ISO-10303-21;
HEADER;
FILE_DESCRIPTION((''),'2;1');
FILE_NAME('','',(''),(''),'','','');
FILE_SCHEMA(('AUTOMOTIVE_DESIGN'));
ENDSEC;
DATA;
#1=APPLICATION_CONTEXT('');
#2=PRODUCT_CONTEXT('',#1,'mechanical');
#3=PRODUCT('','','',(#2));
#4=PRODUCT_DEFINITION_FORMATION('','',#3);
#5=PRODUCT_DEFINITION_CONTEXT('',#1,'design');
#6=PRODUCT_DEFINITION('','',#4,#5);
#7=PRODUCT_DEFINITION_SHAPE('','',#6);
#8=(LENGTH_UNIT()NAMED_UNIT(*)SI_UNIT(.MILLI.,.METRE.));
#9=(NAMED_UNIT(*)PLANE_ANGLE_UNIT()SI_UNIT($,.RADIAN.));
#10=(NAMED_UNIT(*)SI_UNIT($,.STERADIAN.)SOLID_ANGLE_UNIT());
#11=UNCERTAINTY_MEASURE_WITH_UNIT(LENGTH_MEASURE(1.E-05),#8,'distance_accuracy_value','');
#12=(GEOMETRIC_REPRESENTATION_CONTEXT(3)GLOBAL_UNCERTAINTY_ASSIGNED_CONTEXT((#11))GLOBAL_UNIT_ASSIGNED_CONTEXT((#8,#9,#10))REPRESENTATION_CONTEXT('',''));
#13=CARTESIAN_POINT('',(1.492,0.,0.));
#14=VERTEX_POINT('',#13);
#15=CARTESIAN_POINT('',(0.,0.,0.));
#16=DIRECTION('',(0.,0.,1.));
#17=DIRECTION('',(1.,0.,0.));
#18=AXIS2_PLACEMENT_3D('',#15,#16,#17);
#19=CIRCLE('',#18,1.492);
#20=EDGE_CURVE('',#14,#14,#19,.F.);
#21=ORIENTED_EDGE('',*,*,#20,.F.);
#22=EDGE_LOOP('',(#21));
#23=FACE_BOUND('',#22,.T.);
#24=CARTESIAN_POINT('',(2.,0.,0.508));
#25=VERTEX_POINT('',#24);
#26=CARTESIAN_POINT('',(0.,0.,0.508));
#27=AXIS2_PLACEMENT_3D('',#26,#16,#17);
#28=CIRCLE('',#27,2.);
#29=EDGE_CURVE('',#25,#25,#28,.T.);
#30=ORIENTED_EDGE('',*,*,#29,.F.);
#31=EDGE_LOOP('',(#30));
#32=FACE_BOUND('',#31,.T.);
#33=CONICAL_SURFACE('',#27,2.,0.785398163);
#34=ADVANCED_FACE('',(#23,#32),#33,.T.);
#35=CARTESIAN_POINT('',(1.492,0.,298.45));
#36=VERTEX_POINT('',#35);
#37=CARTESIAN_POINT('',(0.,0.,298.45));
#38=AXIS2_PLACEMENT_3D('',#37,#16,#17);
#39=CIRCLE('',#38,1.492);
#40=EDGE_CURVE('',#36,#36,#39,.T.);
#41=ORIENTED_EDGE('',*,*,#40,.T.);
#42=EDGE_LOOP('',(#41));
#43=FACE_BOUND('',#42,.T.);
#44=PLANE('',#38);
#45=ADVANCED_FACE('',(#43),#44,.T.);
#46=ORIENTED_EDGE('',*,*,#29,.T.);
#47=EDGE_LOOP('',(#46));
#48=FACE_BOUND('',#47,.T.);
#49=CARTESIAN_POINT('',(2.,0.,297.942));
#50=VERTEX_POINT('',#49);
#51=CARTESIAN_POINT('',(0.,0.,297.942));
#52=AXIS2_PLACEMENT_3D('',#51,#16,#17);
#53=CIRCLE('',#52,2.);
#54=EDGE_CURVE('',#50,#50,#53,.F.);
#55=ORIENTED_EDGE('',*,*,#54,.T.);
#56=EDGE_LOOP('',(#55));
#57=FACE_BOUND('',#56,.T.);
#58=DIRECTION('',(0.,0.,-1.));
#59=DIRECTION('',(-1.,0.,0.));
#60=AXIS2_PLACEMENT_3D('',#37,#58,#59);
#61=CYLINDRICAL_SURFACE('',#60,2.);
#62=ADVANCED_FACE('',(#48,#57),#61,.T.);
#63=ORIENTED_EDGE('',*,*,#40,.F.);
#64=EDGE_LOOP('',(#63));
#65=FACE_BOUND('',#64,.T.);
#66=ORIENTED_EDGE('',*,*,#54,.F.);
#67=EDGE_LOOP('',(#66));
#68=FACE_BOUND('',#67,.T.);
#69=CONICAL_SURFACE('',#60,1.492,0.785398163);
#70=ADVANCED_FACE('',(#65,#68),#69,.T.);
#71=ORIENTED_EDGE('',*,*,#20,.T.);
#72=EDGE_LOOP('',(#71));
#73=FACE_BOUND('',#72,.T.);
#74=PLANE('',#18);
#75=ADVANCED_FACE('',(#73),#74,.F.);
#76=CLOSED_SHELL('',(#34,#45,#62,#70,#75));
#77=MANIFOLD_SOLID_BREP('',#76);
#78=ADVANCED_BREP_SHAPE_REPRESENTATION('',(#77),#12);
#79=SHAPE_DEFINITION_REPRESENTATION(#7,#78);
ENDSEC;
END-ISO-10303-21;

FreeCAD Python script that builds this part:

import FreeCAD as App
import Part
import Sketcher

V = App.Vector


def edges_at(feature, points):
    """Names of the edges that pass closest to the given points."""
    edges = feature.Shape.Edges
    near = lambda p: min(range(len(edges)), key=lambda i: edges[i].distToShape(Part.Vertex(*p))[0])
    return sorted({f"Edge{near(p) + 1}" for p in points})

doc = App.newDocument("Part")
params = doc.addObject("Spreadsheet::Sheet", "Params")
for row, (alias, value) in enumerate([
    ("pad1_length", "11.75 in"),
    ("chamfer_size", "0.02 in"),
], start=1):
    params.set(f"A{row}", alias)
    params.set(f"B{row}", "=" + value)
    params.setAlias(f"B{row}", alias)

body = doc.addObject("PartDesign::Body", "Body")

sketch1 = body.newObject("Sketcher::SketchObject", "Sketch")
sketch1.AttachmentSupport = (doc.getObject("XY_Plane"), [""])
sketch1.MapMode = "FlatFace"
sketch1.addGeometry(Part.Circle(V(0, 0, 0), V(0, 0, 1), 2), False)
sketch1.addConstraint([
    Sketcher.Constraint("Coincident", 0, 3, -1, 1),
    Sketcher.Constraint("Diameter", 0, 4.0),
])
pad1 = body.newObject("PartDesign::Pad", "Pad")
pad1.Profile = sketch1
pad1.setExpression("Length", "Params.pad1_length")
doc.recompute()

chamfer = body.newObject("PartDesign::Chamfer", "Chamfer")
chamfer.Base = (pad1, edges_at(pad1, [(-2, 0, 0), (-2, 0, 298.45)]))
chamfer.setExpression("Size", "Params.chamfer_size")

doc.recompute()
